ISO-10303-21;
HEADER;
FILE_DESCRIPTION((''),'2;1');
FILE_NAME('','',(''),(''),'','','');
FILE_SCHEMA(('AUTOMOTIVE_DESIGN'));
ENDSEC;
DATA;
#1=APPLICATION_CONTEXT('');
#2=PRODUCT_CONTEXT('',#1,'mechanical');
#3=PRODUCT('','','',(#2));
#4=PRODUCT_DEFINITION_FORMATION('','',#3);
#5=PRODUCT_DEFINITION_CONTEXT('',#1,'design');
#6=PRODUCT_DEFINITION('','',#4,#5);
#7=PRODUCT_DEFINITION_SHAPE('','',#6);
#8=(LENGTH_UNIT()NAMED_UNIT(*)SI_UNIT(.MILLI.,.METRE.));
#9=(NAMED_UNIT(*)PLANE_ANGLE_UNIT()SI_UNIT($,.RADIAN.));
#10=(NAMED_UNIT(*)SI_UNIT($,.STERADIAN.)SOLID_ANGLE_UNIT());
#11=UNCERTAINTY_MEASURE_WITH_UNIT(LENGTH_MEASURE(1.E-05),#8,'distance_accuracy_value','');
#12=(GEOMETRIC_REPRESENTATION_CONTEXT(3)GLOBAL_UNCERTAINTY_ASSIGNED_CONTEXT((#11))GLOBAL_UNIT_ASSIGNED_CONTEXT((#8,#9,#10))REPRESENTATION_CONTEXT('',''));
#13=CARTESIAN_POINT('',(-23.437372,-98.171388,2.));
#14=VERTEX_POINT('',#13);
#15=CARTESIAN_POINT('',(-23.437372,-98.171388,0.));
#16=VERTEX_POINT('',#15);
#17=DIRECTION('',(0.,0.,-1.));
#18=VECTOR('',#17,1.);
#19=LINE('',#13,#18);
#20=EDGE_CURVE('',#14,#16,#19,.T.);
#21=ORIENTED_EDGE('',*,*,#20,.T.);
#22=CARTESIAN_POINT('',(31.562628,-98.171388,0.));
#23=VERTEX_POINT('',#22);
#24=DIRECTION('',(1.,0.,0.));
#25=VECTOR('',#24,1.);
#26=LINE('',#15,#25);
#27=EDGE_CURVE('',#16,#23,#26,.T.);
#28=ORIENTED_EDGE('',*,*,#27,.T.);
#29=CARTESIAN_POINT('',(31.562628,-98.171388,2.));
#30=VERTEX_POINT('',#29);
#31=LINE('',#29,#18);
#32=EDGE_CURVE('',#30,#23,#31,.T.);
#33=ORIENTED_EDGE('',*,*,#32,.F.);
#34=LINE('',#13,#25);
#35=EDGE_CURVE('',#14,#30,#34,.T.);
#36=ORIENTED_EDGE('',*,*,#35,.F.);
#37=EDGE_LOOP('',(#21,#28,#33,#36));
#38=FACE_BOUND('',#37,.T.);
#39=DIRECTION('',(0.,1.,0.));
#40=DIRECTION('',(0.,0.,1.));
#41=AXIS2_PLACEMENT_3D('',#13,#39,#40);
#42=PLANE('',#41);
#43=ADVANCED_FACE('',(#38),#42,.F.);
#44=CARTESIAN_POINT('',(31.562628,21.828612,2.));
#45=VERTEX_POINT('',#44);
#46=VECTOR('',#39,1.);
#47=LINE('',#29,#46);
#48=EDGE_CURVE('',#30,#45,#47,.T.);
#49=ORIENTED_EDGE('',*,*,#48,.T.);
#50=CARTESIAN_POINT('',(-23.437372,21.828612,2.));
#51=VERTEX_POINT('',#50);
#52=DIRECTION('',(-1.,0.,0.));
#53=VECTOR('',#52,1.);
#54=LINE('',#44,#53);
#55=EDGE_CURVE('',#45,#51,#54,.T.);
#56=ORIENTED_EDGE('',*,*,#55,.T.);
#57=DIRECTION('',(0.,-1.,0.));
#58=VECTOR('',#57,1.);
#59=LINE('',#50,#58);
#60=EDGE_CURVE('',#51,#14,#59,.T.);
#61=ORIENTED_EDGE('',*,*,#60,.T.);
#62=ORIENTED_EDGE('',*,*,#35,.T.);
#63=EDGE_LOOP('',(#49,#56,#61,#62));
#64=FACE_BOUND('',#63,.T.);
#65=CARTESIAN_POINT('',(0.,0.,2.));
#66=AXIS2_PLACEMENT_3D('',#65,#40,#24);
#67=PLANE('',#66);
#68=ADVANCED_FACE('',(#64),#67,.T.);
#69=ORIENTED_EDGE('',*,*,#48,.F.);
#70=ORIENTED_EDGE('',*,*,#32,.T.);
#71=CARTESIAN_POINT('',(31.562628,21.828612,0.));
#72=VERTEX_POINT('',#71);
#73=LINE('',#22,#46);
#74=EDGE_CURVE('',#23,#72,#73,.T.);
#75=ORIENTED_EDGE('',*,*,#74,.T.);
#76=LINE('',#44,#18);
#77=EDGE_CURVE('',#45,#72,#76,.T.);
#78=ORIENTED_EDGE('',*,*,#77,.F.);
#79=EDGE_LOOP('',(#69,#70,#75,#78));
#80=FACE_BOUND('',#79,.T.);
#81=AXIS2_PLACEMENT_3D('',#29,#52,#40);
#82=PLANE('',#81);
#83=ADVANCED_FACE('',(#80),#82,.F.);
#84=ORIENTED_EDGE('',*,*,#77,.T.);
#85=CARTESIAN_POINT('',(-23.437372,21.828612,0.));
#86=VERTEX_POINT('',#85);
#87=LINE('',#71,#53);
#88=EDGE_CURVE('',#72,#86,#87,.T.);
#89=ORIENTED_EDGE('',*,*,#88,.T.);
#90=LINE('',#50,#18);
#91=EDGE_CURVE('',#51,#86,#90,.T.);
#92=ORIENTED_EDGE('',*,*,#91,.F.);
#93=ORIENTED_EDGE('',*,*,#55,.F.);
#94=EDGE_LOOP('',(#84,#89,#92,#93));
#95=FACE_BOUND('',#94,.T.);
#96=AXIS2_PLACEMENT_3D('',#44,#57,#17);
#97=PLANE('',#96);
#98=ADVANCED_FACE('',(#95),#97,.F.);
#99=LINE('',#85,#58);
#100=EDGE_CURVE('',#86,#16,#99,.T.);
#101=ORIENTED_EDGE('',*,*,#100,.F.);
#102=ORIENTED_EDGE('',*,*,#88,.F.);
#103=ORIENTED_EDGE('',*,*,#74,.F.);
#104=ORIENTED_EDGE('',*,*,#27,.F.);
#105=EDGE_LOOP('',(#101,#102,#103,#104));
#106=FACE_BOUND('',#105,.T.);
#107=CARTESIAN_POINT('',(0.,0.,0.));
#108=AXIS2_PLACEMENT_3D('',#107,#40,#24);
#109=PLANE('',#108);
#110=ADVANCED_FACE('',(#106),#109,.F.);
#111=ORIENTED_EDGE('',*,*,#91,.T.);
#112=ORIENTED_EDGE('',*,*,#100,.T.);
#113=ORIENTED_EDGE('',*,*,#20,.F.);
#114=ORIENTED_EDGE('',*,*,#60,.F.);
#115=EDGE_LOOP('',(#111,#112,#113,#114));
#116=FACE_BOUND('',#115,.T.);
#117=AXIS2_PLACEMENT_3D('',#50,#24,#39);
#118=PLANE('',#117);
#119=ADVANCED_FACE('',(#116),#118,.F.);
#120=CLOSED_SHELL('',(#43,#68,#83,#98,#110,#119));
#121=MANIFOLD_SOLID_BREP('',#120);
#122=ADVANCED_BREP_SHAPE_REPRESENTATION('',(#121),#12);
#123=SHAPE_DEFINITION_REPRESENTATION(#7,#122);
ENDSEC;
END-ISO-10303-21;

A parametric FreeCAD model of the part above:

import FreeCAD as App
import Part
import Sketcher

V = App.Vector

doc = App.newDocument("Part")
params = doc.addObject("Spreadsheet::Sheet", "Params")
for row, (alias, value) in enumerate([
    ("sketch1_width", "55 mm"),
    ("sketch1_height", "120 mm"),
    ("pad1_length", "2 mm"),
], start=1):
    params.set(f"A{row}", alias)
    params.set(f"B{row}", "=" + value)
    params.setAlias(f"B{row}", alias)

body = doc.addObject("PartDesign::Body", "Body")

# Sketch on XY plane
sketch1 = body.newObject("Sketcher::SketchObject", "Sketch")
sketch1.AttachmentSupport = (doc.getObject("XY_Plane"), [""])
sketch1.MapMode = "FlatFace"
sketch1.addGeometry(Part.LineSegment(V(-23.437372, 21.828612, 0), V(-23.437372, -98.171388, 0)), False)
sketch1.addGeometry(Part.LineSegment(V(-23.437372, -98.171388, 0), V(31.562628, -98.171388, 0)), False)
sketch1.addGeometry(Part.LineSegment(V(31.562628, -98.171388, 0), V(31.562628, 21.828612, 0)), False)
sketch1.addGeometry(Part.LineSegment(V(31.562628, 21.828612, 0), V(-23.437372, 21.828612, 0)), False)
sketch1.addConstraint(Sketcher.Constraint("Coincident", 0, 2, 1, 1))
sketch1.addConstraint(Sketcher.Constraint("Coincident", 1, 2, 2, 1))
sketch1.addConstraint(Sketcher.Constraint("Coincident", 2, 2, 3, 1))
sketch1.addConstraint(Sketcher.Constraint("Coincident", 3, 2, 0, 1))
sketch1.addConstraint(Sketcher.Constraint("Vertical", 0))
sketch1.addConstraint(Sketcher.Constraint("Horizontal", 1))
sketch1.addConstraint(Sketcher.Constraint("Vertical", 2))
sketch1.addConstraint(Sketcher.Constraint("Horizontal", 3))
sketch1.addConstraint(Sketcher.Constraint("DistanceX", 1, 1, 1, 2, 55.0))
sketch1.addConstraint(Sketcher.Constraint("DistanceY", 0, 2, 0, 1, 120.0))
sketch1.addConstraint(Sketcher.Constraint("DistanceY", 0, 2, -1, 1, 98.171388))
sketch1.addConstraint(Sketcher.Constraint("DistanceX", 0, 2, -1, 1, 23.437372))
sketch1.setExpression("Constraints[8]", "Params.sketch1_width")
sketch1.setExpression("Constraints[9]", "Params.sketch1_height")
pad1 = body.newObject("PartDesign::Pad", "Pad")
pad1.Profile = sketch1
pad1.setExpression("Length", "Params.pad1_length")

doc.recompute()
